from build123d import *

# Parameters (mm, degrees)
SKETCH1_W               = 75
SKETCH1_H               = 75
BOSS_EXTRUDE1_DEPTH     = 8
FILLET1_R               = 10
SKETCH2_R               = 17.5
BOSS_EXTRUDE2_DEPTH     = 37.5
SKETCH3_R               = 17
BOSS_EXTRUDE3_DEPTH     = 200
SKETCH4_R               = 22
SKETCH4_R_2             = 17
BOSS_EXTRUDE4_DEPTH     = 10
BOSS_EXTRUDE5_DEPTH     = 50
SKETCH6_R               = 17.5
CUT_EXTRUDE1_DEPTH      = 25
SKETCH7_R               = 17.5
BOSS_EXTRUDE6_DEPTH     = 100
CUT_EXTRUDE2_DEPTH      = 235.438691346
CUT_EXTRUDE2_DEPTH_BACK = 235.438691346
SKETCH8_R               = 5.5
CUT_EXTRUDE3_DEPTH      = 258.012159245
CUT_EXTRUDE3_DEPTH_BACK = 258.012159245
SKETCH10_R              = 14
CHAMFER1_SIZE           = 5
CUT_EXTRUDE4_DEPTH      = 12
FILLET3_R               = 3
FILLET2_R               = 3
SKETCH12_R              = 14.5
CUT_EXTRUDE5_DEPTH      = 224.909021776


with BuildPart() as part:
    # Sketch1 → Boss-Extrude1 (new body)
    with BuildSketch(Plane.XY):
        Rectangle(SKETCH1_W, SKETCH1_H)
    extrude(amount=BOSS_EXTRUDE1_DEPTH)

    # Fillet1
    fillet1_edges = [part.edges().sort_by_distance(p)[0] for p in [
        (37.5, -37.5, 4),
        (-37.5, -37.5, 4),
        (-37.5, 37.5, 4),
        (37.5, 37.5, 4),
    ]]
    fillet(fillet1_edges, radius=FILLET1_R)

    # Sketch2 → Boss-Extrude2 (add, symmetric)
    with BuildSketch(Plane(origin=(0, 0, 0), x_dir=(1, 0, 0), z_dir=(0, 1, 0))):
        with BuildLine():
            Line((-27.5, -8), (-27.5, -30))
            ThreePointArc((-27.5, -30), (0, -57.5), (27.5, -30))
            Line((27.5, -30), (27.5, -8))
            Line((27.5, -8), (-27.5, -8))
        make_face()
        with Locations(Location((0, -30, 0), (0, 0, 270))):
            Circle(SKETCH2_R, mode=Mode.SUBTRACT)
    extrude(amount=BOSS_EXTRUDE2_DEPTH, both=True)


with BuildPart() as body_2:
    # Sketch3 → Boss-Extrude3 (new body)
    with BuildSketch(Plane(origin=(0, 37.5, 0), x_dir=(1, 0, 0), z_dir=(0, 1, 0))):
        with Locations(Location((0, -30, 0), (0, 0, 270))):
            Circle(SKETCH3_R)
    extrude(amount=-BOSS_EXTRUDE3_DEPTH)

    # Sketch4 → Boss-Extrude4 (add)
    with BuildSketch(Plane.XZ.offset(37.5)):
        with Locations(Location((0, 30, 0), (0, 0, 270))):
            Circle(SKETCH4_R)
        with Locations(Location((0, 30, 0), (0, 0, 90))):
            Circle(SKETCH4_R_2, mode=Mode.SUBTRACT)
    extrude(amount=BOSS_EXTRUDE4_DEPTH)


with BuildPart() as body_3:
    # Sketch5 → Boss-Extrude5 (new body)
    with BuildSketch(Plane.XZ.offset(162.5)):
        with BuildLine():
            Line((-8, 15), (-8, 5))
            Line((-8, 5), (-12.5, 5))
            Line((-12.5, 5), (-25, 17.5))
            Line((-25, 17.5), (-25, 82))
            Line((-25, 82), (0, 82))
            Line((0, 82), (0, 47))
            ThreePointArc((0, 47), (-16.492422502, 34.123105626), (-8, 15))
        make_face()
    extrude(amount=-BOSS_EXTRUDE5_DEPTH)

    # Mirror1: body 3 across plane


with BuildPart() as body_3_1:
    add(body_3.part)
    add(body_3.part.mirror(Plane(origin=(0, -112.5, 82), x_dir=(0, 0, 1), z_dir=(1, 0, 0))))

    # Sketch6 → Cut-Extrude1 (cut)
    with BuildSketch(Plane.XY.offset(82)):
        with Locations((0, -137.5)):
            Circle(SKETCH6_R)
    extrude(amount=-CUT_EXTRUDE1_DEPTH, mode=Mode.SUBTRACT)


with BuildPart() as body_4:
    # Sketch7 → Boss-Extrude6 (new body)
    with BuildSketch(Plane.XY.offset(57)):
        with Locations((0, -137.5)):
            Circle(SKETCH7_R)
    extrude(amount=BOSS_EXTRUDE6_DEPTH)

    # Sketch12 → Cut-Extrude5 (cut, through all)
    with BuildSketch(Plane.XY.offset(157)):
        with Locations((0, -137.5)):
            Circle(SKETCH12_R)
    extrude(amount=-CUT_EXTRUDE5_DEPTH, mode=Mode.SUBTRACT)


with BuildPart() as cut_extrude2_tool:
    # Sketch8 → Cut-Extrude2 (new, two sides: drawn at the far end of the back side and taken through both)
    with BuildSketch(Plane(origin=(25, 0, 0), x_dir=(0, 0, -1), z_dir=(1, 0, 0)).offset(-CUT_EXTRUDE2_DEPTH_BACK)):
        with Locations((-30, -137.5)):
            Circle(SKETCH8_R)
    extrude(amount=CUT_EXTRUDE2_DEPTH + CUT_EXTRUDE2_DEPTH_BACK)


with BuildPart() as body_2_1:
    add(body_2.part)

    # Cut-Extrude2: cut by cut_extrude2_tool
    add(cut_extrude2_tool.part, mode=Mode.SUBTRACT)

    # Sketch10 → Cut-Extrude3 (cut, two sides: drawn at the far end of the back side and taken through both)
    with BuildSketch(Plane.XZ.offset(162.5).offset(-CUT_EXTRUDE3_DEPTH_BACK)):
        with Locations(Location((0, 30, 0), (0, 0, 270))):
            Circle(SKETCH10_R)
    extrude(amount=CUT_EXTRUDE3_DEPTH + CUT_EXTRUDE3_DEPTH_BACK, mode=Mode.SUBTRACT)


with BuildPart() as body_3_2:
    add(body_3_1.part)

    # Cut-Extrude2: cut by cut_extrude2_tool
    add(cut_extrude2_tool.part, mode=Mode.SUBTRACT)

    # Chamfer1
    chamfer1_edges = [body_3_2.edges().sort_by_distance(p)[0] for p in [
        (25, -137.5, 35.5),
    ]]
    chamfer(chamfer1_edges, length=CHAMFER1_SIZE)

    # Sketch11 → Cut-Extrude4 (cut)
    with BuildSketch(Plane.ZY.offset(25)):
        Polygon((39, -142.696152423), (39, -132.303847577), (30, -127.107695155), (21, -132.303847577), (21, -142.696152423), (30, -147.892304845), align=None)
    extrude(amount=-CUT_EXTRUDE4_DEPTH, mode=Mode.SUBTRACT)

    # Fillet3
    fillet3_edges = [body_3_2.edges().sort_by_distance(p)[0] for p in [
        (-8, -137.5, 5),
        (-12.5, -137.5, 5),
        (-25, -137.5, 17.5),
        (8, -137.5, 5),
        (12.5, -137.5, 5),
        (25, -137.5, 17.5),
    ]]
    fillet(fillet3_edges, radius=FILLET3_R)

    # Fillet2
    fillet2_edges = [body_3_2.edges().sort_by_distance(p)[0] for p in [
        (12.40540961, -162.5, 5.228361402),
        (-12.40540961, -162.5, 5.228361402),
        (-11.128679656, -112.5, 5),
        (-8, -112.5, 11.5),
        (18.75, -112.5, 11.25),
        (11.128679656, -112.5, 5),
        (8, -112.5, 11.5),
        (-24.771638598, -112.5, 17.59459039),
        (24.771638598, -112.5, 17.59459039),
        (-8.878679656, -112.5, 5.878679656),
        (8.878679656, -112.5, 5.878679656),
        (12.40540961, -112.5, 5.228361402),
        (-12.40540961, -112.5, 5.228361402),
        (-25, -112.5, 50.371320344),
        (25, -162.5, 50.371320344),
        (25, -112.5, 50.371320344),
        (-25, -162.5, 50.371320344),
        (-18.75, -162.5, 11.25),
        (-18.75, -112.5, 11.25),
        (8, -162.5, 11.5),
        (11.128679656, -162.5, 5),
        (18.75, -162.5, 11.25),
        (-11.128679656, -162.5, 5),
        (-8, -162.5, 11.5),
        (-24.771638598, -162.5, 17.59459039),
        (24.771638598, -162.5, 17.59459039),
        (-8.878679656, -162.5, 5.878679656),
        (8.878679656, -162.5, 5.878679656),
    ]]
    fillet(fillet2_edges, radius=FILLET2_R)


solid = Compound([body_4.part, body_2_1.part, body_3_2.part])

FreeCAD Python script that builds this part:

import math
import FreeCAD as App
import Part
import Sketcher
from FreeCAD import Vector
Q = App.Units.Quantity


def edges_at(feature, points):
    """Names of the edges that pass closest to the given points."""
    edges = feature.Shape.Edges
    near = lambda p: min(range(len(edges)), key=lambda i: edges[i].distToShape(Part.Vertex(*p))[0])
    return sorted({f"Edge{near(p) + 1}" for p in points})


def add_polygon(sketch, points):
    """Adds a closed chain of lines whose ends are joined by coincident constraints."""
    first, n = sketch.GeometryCount, len(points)
    for a, b in zip(points, points[1:] + points[:1]):
        sketch.addGeometry(Part.LineSegment(App.Vector(*a, 0), App.Vector(*b, 0)), False)
    for i in range(n):
        sketch.addConstraint(Sketcher.Constraint("Coincident", first + i, 2, first + (i + 1) % n, 1))

doc = App.newDocument("Part")
body = doc.addObject("PartDesign::Body", "Body")

# Sketch on XY plane
sketch1 = body.newObject("Sketcher::SketchObject", "Sketch")
sketch1.AttachmentSupport = (doc.getObject("XY_Plane"), [""])
sketch1.MapMode = "FlatFace"
add_polygon(sketch1, [(-38, 38), (-38, -38), (38, -38), (38, 38)])  # lines 0-3
sketch1.addConstraint(Sketcher.Constraint("Vertical", 0))
sketch1.addConstraint(Sketcher.Constraint("Horizontal", 1))
sketch1.addConstraint(Sketcher.Constraint("Vertical", 2))
sketch1.addConstraint(Sketcher.Constraint("Horizontal", 3))
sketch1.addConstraint(Sketcher.Constraint("Symmetric", 0, 2, 2, 2, -1, 1))
sketch1.addConstraint(Sketcher.Constraint("Equal", 3, 0))
sketch1.addConstraint(Sketcher.Constraint("DistanceX", 1, 1, 1, 2, Q("75 mm")))
pad1 = body.newObject("PartDesign::Pad", "Pad")
pad1.Profile = sketch1
pad1.Length = 8
doc.recompute()

fillet = body.newObject("PartDesign::Fillet", "Fillet")
fillet.Base = (pad1, edges_at(pad1, [
    (37.5, -37.5, 4),
    (-37.5, -37.5, 4),
    (-37.5, 37.5, 4),
    (37.5, 37.5, 4),
]))
fillet.Radius = 10

# Sketch on XZ plane
sketch2 = body.newObject("Sketcher::SketchObject", "Sketch001")
sketch2.AttachmentSupport = (doc.getObject("XZ_Plane"), [""])
sketch2.MapMode = "FlatFace"
sketch2.addGeometry(Part.LineSegment(Vector(-28, 8, 0), Vector(-28, 30, 0)), False)
sketch2.addGeometry(Part.ArcOfCircle(Part.Circle(Vector(0, 30, 0), Vector(0, 0, 1), 28), math.radians(0), math.radians(180)), False)
sketch2.addGeometry(Part.LineSegment(Vector(28, 30, 0), Vector(28, 8, 0)), False)
sketch2.addGeometry(Part.LineSegment(Vector(28, 8, 0), Vector(-28, 8, 0)), False)
sketch2.addGeometry(Part.Circle(Vector(0, 30, 0), Vector(0, 0, 1), 18), False)
sketch2.addConstraint(Sketcher.Constraint("Tangent", 0, 2, 1, 2))
sketch2.addConstraint(Sketcher.Constraint("Tangent", 1, 1, 2, 1))
sketch2.addConstraint(Sketcher.Constraint("Coincident", 2, 2, 3, 1))
sketch2.addConstraint(Sketcher.Constraint("Coincident", 3, 2, 0, 1))
sketch2.addConstraint(Sketcher.Constraint("Vertical", 0))
sketch2.addConstraint(Sketcher.Constraint("Vertical", 2))
sketch2.addConstraint(Sketcher.Constraint("Horizontal", 3))
sketch2.addConstraint(Sketcher.Constraint("Coincident", 4, 3, 1, 3))
sketch2.addConstraint(Sketcher.Constraint("PointOnObject", 1, 3, -2))
sketch2.addConstraint(Sketcher.Constraint("Diameter", 4, Q("35 mm")))
sketch2.addConstraint(Sketcher.Constraint("Radius", 1, Q("27.5 mm")))
sketch2.addConstraint(Sketcher.Constraint("DistanceY", 0, 1, 0, 2, Q("22 mm")))
sketch2.addConstraint(Sketcher.Constraint("DistanceY", -1, 1, 1, 3, Q("30 mm")))
pad2 = body.newObject("PartDesign::Pad", "Pad001")
pad2.Profile = sketch2
pad2.Length = 75
pad2.Midplane = True
body2 = doc.addObject("PartDesign::Body", "Body001")

# Sketch on XZ plane
sketch3 = body2.newObject("Sketcher::SketchObject", "Sketch002")
sketch3.AttachmentSupport = (doc.getObject("XZ_Plane001"), [""])
sketch3.MapMode = "FlatFace"
sketch3.AttachmentOffset = App.Placement(Vector(0, 0, -37.5), App.Rotation())
sketch3.addGeometry(Part.Circle(Vector(0, 30, 0), Vector(0, 0, 1), 17), False)
sketch3.addConstraint(Sketcher.Constraint("PointOnObject", 0, 3, -2))
sketch3.addConstraint(Sketcher.Constraint("Diameter", 0, Q("34 mm")))
sketch3.addConstraint(Sketcher.Constraint("DistanceY", -1, 1, 0, 3, Q("30 mm")))
pad3 = body2.newObject("PartDesign::Pad", "Pad002")
pad3.Profile = sketch3
pad3.Length = 200

# Sketch on XZ plane
sketch4 = body2.newObject("Sketcher::SketchObject", "Sketch003")
sketch4.AttachmentSupport = (doc.getObject("XZ_Plane001"), [""])
sketch4.MapMode = "FlatFace"
sketch4.AttachmentOffset = App.Placement(Vector(0, 0, 37.5), App.Rotation())
sketch4.addGeometry(Part.Circle(Vector(0, 30, 0), Vector(0, 0, 1), 22), False)
sketch4.addGeometry(Part.Circle(Vector(0, 30, 0), Vector(0, 0, 1), 17), False)
sketch4.addConstraint(Sketcher.Constraint("Coincident", 1, 3, 0, 3))
sketch4.addConstraint(Sketcher.Constraint("PointOnObject", 0, 3, -2))
sketch4.addConstraint(Sketcher.Constraint("Diameter", 0, Q("44 mm")))
sketch4.addConstraint(Sketcher.Constraint("Diameter", 1, Q("34 mm")))
sketch4.addConstraint(Sketcher.Constraint("DistanceY", -1, 1, 0, 3, Q("30 mm")))
pad4 = body2.newObject("PartDesign::Pad", "Pad003")
pad4.Profile = sketch4
pad4.Length = 10
body3 = doc.addObject("PartDesign::Body", "Body002")

# Sketch on XZ plane
sketch5 = body3.newObject("Sketcher::SketchObject", "Sketch004")
sketch5.AttachmentSupport = (doc.getObject("XZ_Plane002"), [""])
sketch5.MapMode = "FlatFace"
sketch5.AttachmentOffset = App.Placement(Vector(0, 0, 162.5), App.Rotation())
sketch5.addGeometry(Part.LineSegment(Vector(-8, 5, 0), Vector(-8, 15, 0)), False)
sketch5.addGeometry(Part.ArcOfCircle(Part.Circle(Vector(0, 30, 0), Vector(0, 0, 1), 17), math.radians(90), math.radians(242)), False)
sketch5.addGeometry(Part.LineSegment(Vector(0, 47, 0), Vector(0, 82, 0)), False)
sketch5.addGeometry(Part.LineSegment(Vector(0, 82, 0), Vector(-25, 82, 0)), False)
sketch5.addGeometry(Part.LineSegment(Vector(-25, 82, 0), Vector(-25, 17.5, 0)), False)
sketch5.addGeometry(Part.LineSegment(Vector(-25, 17.5, 0), Vector(-12.5, 5, 0)), False)
sketch5.addGeometry(Part.LineSegment(Vector(-12.5, 5, 0), Vector(-8, 5, 0)), False)
sketch5.addConstraint(Sketcher.Constraint("Coincident", 0, 2, 1, 2))
sketch5.addConstraint(Sketcher.Constraint("Coincident", 1, 1, 2, 1))
sketch5.addConstraint(Sketcher.Constraint("Coincident", 2, 2, 3, 1))
sketch5.addConstraint(Sketcher.Constraint("Coincident", 3, 2, 4, 1))
sketch5.addConstraint(Sketcher.Constraint("Coincident", 4, 2, 5, 1))
sketch5.addConstraint(Sketcher.Constraint("Coincident", 5, 2, 6, 1))
sketch5.addConstraint(Sketcher.Constraint("Coincident", 6, 2, 0, 1))
sketch5.addConstraint(Sketcher.Constraint("Vertical", 0))
sketch5.addConstraint(Sketcher.Constraint("Vertical", 2))
sketch5.addConstraint(Sketcher.Constraint("Horizontal", 3))
sketch5.addConstraint(Sketcher.Constraint("Vertical", 4))
sketch5.addConstraint(Sketcher.Constraint("Horizontal", 6))
sketch5.addConstraint(Sketcher.Constraint("PointOnObject", 1, 3, -2))
sketch5.addConstraint(Sketcher.Constraint("PointOnObject", 1, 1, -2))
sketch5.addConstraint(Sketcher.Constraint("Radius", 1, Q("17 mm")))
sketch5.addConstraint(Sketcher.Constraint("DistanceX", 3, 2, 3, 1, Q("25 mm")))
sketch5.addConstraint(Sketcher.Constraint("DistanceY", 0, 1, 0, 2, Q("10 mm")))
sketch5.addConstraint(Sketcher.Constraint("DistanceY", 2, 1, 2, 2, Q("35 mm")))
sketch5.addConstraint(Sketcher.Constraint("Angle", 5, Q("-45 deg")))
sketch5.addConstraint(Sketcher.Constraint("DistanceX", 6, 1, 6, 2, Q("4.5 mm")))
sketch5.addConstraint(Sketcher.Constraint("DistanceY", 4, 2, 4, 1, Q("64.5 mm")))
sketch5.addConstraint(Sketcher.Constraint("DistanceY", -1, 1, 1, 3, Q("30 mm")))
pad5 = body3.newObject("PartDesign::Pad", "Pad004")
pad5.Profile = sketch5
pad5.Length = 50
pad5.Reversed = True
body4 = doc.addObject("PartDesign::Body", "Body003")
doc.recompute()

body4.BaseFeature = body3
doc.recompute()

mirroring = doc.addObject("Part::Mirroring", "Mirroring")
mirroring.Source = body3
mirroring.Base = Vector(0, -112.5, 82)
mirroring.Normal = Vector(1, 0, 0)
body5 = doc.addObject("PartDesign::Body", "Body004")
body5.BaseFeature = mirroring
boolean = body4.newObject("PartDesign::Boolean", "Boolean")
boolean.Type = "Fuse"
boolean.addObjects([body5])
doc.recompute()

# Sketch on XY plane
sketch6 = body4.newObject("Sketcher::SketchObject", "Sketch005")
sketch6.AttachmentSupport = (doc.getObject("XY_Plane003"), [""])
sketch6.MapMode = "FlatFace"
sketch6.AttachmentOffset = App.Placement(Vector(0, 0, 82), App.Rotation())
sketch6.addGeometry(Part.Circle(Vector(0, -138, 0), Vector(0, 0, 1), 18), False)
sketch6.addConstraint(Sketcher.Constraint("PointOnObject", 0, 3, -2))
sketch6.addConstraint(Sketcher.Constraint("Diameter", 0, Q("35 mm")))
sketch6.addConstraint(Sketcher.Constraint("DistanceY", 0, 3, -1, 1, Q("137.5 mm")))
pocket1 = body4.newObject("PartDesign::Pocket", "Pocket")
pocket1.Profile = sketch6
pocket1.Length = 25
body6 = doc.addObject("PartDesign::Body", "Body005")

# Sketch on XY plane
sketch7 = body6.newObject("Sketcher::SketchObject", "Sketch006")
sketch7.AttachmentSupport = (doc.getObject("XY_Plane005"), [""])
sketch7.MapMode = "FlatFace"
sketch7.AttachmentOffset = App.Placement(Vector(0, 0, 57), App.Rotation())
sketch7.addGeometry(Part.Circle(Vector(0, -138, 0), Vector(0, 0, 1), 18), False)
sketch7.addConstraint(Sketcher.Constraint("PointOnObject", 0, 3, -2))
sketch7.addConstraint(Sketcher.Constraint("Diameter", 0, Q("35 mm")))
sketch7.addConstraint(Sketcher.Constraint("DistanceY", 0, 3, -1, 1, Q("137.5 mm")))
pad6 = body6.newObject("PartDesign::Pad", "Pad005")
pad6.Profile = sketch7
pad6.Length = 100

# Sketch on XY plane
sketch8 = body6.newObject("Sketcher::SketchObject", "Sketch007")
sketch8.AttachmentSupport = (doc.getObject("XY_Plane005"), [""])
sketch8.MapMode = "FlatFace"
sketch8.AttachmentOffset = App.Placement(Vector(0, 0, 157), App.Rotation())
sketch8.addGeometry(Part.Circle(Vector(0, -138, 0), Vector(0, 0, 1), 14), False)
sketch8.addConstraint(Sketcher.Constraint("PointOnObject", 0, 3, -2))
sketch8.addConstraint(Sketcher.Constraint("Diameter", 0, Q("29 mm")))
sketch8.addConstraint(Sketcher.Constraint("DistanceY", 0, 3, -1, 1, Q("137.5 mm")))
pocket2 = body6.newObject("PartDesign::Pocket", "Pocket001")
pocket2.Profile = sketch8
pocket2.Type = "ThroughAll"
body7 = doc.addObject("PartDesign::Body", "Body006")

# Sketch on YZ plane
sketch9 = body7.newObject("Sketcher::SketchObject", "Sketch008")
sketch9.AttachmentSupport = (doc.getObject("YZ_Plane006"), [""])
sketch9.MapMode = "FlatFace"
sketch9.AttachmentOffset = App.Placement(Vector(0, 0, 25), App.Rotation())
sketch9.addGeometry(Part.Circle(Vector(-138, 30, 0), Vector(0, 0, 1), 6), False)
sketch9.addConstraint(Sketcher.Constraint("Diameter", 0, Q("11 mm")))
sketch9.addConstraint(Sketcher.Constraint("DistanceY", -1, 1, 0, 3, Q("30 mm")))
sketch9.addConstraint(Sketcher.Constraint("DistanceX", 0, 3, -1, 1, Q("137.5 mm")))
pad7 = body7.newObject("PartDesign::Pad", "Pad006")
pad7.Profile = sketch9
pad7.Type = "TwoLengths"
pad7.Length = 235.438691
pad7.Length2 = 235.438691
doc.recompute()

body8 = doc.addObject("PartDesign::Body", "Body007")
body8.BaseFeature = body7
boolean2 = body2.newObject("PartDesign::Boolean", "Boolean001")
boolean2.Type = "Cut"
boolean2.addObjects([body8])
doc.recompute()

# Sketch on XZ plane
sketch10 = body2.newObject("Sketcher::SketchObject", "Sketch009")
sketch10.AttachmentSupport = (doc.getObject("XZ_Plane001"), [""])
sketch10.MapMode = "FlatFace"
sketch10.AttachmentOffset = App.Placement(Vector(0, 0, 162.5), App.Rotation())
sketch10.addGeometry(Part.Circle(Vector(0, 30, 0), Vector(0, 0, 1), 14), False)
sketch10.addConstraint(Sketcher.Constraint("PointOnObject", 0, 3, -2))
sketch10.addConstraint(Sketcher.Constraint("Diameter", 0, Q("28 mm")))
sketch10.addConstraint(Sketcher.Constraint("DistanceY", -1, 1, 0, 3, Q("30 mm")))
pocket3 = body2.newObject("PartDesign::Pocket", "Pocket002")
pocket3.Profile = sketch10
pocket3.Type = "ThroughAll"
pocket3.Midplane = True
doc.recompute()

boolean3 = body4.newObject("PartDesign::Boolean", "Boolean002")
boolean3.Type = "Cut"
boolean3.addObjects([body7])
doc.recompute()

chamfer = body4.newObject("PartDesign::Chamfer", "Chamfer")
chamfer.Base = (boolean3, edges_at(boolean3, [(25, -137.5, 35.5)]))
chamfer.Size = 5

# Sketch on YZ plane
sketch11 = body4.newObject("Sketcher::SketchObject", "Sketch010")
sketch11.AttachmentSupport = (doc.getObject("YZ_Plane003"), [""])
sketch11.MapMode = "FlatFace"
sketch11.AttachmentOffset = App.Placement(Vector(0, 0, -25), App.Rotation())
add_polygon(sketch11, [(-143, 39), (-132, 39), (-127, 30), (-132, 21), (-143, 21), (-148, 30)])  # lines 0-5
sketch11.addConstraint(Sketcher.Constraint("Horizontal", 0))
sketch11.addConstraint(Sketcher.Constraint("Horizontal", 3))
sketch11.addConstraint(Sketcher.Constraint("Parallel", 1, 4))
sketch11.addConstraint(Sketcher.Constraint("Parallel", 2, 5))
sketch11.addConstraint(Sketcher.Constraint("Horizontal", 1, 2, 4, 2))
sketch11.addConstraint(Sketcher.Constraint("Vertical", 0, 2, 2, 2))
sketch11.addConstraint(Sketcher.Constraint("Vertical", 3, 2, 5, 2))
sketch11.addConstraint(Sketcher.Constraint("Angle", 1, Q("-60 deg")))
sketch11.addConstraint(Sketcher.Constraint("DistanceY", -1, 1, 0, 2, Q("39 mm")))
sketch11.addConstraint(Sketcher.Constraint("DistanceY", -1, 1, 1, 2, Q("30 mm")))
sketch11.addConstraint(Sketcher.Constraint("DistanceX", 0, 1, 0, 2, Q("10.392305 mm")))
sketch11.addConstraint(Sketcher.Constraint("DistanceX", 0, 2, -1, 1, Q("132.303848 mm")))
pocket4 = body4.newObject("PartDesign::Pocket", "Pocket003")
pocket4.Profile = sketch11
pocket4.Length = 12
pocket4.Reversed = True
doc.recompute()

fillet2 = body4.newObject("PartDesign::Fillet", "Fillet001")
fillet2.Base = (pocket4, edges_at(pocket4, [
    (-8, -137.5, 5),
    (-12.5, -137.5, 5),
    (-25, -137.5, 17.5),
    (8, -137.5, 5),
    (12.5, -137.5, 5),
    (25, -137.5, 17.5),
]))
fillet2.Radius = 3
doc.recompute()

fillet3 = body4.newObject("PartDesign::Fillet", "Fillet002")
fillet3.Base = (fillet2, edges_at(fillet2, [
    (12.405, -162.5, 5.228),
    (-12.405, -162.5, 5.228),
    (-11.129, -112.5, 5),
    (-8, -112.5, 11.5),
    (18.75, -112.5, 11.25),
    (11.129, -112.5, 5),
    (8, -112.5, 11.5),
    (-24.772, -112.5, 17.595),
    (24.772, -112.5, 17.595),
    (-8.879, -112.5, 5.879),
    (8.879, -112.5, 5.879),
    (12.405, -112.5, 5.228),
    (-12.405, -112.5, 5.228),
    (-25, -112.5, 50.371),
    (25, -162.5, 50.371),
    (25, -112.5, 50.371),
    (-25, -162.5, 50.371),
    (-18.75, -162.5, 11.25),
    (-18.75, -112.5, 11.25),
    (8, -162.5, 11.5),
    (11.129, -162.5, 5),
    (18.75, -162.5, 11.25),
    (-11.129, -162.5, 5),
    (-8, -162.5, 11.5),
    (-24.772, -162.5, 17.595),
    (24.772, -162.5, 17.595),
    (-8.879, -162.5, 5.879),
    (8.879, -162.5, 5.879),
]))
fillet3.Radius = 3
body.Visibility = False
mirroring.Visibility = False

doc.recompute()
